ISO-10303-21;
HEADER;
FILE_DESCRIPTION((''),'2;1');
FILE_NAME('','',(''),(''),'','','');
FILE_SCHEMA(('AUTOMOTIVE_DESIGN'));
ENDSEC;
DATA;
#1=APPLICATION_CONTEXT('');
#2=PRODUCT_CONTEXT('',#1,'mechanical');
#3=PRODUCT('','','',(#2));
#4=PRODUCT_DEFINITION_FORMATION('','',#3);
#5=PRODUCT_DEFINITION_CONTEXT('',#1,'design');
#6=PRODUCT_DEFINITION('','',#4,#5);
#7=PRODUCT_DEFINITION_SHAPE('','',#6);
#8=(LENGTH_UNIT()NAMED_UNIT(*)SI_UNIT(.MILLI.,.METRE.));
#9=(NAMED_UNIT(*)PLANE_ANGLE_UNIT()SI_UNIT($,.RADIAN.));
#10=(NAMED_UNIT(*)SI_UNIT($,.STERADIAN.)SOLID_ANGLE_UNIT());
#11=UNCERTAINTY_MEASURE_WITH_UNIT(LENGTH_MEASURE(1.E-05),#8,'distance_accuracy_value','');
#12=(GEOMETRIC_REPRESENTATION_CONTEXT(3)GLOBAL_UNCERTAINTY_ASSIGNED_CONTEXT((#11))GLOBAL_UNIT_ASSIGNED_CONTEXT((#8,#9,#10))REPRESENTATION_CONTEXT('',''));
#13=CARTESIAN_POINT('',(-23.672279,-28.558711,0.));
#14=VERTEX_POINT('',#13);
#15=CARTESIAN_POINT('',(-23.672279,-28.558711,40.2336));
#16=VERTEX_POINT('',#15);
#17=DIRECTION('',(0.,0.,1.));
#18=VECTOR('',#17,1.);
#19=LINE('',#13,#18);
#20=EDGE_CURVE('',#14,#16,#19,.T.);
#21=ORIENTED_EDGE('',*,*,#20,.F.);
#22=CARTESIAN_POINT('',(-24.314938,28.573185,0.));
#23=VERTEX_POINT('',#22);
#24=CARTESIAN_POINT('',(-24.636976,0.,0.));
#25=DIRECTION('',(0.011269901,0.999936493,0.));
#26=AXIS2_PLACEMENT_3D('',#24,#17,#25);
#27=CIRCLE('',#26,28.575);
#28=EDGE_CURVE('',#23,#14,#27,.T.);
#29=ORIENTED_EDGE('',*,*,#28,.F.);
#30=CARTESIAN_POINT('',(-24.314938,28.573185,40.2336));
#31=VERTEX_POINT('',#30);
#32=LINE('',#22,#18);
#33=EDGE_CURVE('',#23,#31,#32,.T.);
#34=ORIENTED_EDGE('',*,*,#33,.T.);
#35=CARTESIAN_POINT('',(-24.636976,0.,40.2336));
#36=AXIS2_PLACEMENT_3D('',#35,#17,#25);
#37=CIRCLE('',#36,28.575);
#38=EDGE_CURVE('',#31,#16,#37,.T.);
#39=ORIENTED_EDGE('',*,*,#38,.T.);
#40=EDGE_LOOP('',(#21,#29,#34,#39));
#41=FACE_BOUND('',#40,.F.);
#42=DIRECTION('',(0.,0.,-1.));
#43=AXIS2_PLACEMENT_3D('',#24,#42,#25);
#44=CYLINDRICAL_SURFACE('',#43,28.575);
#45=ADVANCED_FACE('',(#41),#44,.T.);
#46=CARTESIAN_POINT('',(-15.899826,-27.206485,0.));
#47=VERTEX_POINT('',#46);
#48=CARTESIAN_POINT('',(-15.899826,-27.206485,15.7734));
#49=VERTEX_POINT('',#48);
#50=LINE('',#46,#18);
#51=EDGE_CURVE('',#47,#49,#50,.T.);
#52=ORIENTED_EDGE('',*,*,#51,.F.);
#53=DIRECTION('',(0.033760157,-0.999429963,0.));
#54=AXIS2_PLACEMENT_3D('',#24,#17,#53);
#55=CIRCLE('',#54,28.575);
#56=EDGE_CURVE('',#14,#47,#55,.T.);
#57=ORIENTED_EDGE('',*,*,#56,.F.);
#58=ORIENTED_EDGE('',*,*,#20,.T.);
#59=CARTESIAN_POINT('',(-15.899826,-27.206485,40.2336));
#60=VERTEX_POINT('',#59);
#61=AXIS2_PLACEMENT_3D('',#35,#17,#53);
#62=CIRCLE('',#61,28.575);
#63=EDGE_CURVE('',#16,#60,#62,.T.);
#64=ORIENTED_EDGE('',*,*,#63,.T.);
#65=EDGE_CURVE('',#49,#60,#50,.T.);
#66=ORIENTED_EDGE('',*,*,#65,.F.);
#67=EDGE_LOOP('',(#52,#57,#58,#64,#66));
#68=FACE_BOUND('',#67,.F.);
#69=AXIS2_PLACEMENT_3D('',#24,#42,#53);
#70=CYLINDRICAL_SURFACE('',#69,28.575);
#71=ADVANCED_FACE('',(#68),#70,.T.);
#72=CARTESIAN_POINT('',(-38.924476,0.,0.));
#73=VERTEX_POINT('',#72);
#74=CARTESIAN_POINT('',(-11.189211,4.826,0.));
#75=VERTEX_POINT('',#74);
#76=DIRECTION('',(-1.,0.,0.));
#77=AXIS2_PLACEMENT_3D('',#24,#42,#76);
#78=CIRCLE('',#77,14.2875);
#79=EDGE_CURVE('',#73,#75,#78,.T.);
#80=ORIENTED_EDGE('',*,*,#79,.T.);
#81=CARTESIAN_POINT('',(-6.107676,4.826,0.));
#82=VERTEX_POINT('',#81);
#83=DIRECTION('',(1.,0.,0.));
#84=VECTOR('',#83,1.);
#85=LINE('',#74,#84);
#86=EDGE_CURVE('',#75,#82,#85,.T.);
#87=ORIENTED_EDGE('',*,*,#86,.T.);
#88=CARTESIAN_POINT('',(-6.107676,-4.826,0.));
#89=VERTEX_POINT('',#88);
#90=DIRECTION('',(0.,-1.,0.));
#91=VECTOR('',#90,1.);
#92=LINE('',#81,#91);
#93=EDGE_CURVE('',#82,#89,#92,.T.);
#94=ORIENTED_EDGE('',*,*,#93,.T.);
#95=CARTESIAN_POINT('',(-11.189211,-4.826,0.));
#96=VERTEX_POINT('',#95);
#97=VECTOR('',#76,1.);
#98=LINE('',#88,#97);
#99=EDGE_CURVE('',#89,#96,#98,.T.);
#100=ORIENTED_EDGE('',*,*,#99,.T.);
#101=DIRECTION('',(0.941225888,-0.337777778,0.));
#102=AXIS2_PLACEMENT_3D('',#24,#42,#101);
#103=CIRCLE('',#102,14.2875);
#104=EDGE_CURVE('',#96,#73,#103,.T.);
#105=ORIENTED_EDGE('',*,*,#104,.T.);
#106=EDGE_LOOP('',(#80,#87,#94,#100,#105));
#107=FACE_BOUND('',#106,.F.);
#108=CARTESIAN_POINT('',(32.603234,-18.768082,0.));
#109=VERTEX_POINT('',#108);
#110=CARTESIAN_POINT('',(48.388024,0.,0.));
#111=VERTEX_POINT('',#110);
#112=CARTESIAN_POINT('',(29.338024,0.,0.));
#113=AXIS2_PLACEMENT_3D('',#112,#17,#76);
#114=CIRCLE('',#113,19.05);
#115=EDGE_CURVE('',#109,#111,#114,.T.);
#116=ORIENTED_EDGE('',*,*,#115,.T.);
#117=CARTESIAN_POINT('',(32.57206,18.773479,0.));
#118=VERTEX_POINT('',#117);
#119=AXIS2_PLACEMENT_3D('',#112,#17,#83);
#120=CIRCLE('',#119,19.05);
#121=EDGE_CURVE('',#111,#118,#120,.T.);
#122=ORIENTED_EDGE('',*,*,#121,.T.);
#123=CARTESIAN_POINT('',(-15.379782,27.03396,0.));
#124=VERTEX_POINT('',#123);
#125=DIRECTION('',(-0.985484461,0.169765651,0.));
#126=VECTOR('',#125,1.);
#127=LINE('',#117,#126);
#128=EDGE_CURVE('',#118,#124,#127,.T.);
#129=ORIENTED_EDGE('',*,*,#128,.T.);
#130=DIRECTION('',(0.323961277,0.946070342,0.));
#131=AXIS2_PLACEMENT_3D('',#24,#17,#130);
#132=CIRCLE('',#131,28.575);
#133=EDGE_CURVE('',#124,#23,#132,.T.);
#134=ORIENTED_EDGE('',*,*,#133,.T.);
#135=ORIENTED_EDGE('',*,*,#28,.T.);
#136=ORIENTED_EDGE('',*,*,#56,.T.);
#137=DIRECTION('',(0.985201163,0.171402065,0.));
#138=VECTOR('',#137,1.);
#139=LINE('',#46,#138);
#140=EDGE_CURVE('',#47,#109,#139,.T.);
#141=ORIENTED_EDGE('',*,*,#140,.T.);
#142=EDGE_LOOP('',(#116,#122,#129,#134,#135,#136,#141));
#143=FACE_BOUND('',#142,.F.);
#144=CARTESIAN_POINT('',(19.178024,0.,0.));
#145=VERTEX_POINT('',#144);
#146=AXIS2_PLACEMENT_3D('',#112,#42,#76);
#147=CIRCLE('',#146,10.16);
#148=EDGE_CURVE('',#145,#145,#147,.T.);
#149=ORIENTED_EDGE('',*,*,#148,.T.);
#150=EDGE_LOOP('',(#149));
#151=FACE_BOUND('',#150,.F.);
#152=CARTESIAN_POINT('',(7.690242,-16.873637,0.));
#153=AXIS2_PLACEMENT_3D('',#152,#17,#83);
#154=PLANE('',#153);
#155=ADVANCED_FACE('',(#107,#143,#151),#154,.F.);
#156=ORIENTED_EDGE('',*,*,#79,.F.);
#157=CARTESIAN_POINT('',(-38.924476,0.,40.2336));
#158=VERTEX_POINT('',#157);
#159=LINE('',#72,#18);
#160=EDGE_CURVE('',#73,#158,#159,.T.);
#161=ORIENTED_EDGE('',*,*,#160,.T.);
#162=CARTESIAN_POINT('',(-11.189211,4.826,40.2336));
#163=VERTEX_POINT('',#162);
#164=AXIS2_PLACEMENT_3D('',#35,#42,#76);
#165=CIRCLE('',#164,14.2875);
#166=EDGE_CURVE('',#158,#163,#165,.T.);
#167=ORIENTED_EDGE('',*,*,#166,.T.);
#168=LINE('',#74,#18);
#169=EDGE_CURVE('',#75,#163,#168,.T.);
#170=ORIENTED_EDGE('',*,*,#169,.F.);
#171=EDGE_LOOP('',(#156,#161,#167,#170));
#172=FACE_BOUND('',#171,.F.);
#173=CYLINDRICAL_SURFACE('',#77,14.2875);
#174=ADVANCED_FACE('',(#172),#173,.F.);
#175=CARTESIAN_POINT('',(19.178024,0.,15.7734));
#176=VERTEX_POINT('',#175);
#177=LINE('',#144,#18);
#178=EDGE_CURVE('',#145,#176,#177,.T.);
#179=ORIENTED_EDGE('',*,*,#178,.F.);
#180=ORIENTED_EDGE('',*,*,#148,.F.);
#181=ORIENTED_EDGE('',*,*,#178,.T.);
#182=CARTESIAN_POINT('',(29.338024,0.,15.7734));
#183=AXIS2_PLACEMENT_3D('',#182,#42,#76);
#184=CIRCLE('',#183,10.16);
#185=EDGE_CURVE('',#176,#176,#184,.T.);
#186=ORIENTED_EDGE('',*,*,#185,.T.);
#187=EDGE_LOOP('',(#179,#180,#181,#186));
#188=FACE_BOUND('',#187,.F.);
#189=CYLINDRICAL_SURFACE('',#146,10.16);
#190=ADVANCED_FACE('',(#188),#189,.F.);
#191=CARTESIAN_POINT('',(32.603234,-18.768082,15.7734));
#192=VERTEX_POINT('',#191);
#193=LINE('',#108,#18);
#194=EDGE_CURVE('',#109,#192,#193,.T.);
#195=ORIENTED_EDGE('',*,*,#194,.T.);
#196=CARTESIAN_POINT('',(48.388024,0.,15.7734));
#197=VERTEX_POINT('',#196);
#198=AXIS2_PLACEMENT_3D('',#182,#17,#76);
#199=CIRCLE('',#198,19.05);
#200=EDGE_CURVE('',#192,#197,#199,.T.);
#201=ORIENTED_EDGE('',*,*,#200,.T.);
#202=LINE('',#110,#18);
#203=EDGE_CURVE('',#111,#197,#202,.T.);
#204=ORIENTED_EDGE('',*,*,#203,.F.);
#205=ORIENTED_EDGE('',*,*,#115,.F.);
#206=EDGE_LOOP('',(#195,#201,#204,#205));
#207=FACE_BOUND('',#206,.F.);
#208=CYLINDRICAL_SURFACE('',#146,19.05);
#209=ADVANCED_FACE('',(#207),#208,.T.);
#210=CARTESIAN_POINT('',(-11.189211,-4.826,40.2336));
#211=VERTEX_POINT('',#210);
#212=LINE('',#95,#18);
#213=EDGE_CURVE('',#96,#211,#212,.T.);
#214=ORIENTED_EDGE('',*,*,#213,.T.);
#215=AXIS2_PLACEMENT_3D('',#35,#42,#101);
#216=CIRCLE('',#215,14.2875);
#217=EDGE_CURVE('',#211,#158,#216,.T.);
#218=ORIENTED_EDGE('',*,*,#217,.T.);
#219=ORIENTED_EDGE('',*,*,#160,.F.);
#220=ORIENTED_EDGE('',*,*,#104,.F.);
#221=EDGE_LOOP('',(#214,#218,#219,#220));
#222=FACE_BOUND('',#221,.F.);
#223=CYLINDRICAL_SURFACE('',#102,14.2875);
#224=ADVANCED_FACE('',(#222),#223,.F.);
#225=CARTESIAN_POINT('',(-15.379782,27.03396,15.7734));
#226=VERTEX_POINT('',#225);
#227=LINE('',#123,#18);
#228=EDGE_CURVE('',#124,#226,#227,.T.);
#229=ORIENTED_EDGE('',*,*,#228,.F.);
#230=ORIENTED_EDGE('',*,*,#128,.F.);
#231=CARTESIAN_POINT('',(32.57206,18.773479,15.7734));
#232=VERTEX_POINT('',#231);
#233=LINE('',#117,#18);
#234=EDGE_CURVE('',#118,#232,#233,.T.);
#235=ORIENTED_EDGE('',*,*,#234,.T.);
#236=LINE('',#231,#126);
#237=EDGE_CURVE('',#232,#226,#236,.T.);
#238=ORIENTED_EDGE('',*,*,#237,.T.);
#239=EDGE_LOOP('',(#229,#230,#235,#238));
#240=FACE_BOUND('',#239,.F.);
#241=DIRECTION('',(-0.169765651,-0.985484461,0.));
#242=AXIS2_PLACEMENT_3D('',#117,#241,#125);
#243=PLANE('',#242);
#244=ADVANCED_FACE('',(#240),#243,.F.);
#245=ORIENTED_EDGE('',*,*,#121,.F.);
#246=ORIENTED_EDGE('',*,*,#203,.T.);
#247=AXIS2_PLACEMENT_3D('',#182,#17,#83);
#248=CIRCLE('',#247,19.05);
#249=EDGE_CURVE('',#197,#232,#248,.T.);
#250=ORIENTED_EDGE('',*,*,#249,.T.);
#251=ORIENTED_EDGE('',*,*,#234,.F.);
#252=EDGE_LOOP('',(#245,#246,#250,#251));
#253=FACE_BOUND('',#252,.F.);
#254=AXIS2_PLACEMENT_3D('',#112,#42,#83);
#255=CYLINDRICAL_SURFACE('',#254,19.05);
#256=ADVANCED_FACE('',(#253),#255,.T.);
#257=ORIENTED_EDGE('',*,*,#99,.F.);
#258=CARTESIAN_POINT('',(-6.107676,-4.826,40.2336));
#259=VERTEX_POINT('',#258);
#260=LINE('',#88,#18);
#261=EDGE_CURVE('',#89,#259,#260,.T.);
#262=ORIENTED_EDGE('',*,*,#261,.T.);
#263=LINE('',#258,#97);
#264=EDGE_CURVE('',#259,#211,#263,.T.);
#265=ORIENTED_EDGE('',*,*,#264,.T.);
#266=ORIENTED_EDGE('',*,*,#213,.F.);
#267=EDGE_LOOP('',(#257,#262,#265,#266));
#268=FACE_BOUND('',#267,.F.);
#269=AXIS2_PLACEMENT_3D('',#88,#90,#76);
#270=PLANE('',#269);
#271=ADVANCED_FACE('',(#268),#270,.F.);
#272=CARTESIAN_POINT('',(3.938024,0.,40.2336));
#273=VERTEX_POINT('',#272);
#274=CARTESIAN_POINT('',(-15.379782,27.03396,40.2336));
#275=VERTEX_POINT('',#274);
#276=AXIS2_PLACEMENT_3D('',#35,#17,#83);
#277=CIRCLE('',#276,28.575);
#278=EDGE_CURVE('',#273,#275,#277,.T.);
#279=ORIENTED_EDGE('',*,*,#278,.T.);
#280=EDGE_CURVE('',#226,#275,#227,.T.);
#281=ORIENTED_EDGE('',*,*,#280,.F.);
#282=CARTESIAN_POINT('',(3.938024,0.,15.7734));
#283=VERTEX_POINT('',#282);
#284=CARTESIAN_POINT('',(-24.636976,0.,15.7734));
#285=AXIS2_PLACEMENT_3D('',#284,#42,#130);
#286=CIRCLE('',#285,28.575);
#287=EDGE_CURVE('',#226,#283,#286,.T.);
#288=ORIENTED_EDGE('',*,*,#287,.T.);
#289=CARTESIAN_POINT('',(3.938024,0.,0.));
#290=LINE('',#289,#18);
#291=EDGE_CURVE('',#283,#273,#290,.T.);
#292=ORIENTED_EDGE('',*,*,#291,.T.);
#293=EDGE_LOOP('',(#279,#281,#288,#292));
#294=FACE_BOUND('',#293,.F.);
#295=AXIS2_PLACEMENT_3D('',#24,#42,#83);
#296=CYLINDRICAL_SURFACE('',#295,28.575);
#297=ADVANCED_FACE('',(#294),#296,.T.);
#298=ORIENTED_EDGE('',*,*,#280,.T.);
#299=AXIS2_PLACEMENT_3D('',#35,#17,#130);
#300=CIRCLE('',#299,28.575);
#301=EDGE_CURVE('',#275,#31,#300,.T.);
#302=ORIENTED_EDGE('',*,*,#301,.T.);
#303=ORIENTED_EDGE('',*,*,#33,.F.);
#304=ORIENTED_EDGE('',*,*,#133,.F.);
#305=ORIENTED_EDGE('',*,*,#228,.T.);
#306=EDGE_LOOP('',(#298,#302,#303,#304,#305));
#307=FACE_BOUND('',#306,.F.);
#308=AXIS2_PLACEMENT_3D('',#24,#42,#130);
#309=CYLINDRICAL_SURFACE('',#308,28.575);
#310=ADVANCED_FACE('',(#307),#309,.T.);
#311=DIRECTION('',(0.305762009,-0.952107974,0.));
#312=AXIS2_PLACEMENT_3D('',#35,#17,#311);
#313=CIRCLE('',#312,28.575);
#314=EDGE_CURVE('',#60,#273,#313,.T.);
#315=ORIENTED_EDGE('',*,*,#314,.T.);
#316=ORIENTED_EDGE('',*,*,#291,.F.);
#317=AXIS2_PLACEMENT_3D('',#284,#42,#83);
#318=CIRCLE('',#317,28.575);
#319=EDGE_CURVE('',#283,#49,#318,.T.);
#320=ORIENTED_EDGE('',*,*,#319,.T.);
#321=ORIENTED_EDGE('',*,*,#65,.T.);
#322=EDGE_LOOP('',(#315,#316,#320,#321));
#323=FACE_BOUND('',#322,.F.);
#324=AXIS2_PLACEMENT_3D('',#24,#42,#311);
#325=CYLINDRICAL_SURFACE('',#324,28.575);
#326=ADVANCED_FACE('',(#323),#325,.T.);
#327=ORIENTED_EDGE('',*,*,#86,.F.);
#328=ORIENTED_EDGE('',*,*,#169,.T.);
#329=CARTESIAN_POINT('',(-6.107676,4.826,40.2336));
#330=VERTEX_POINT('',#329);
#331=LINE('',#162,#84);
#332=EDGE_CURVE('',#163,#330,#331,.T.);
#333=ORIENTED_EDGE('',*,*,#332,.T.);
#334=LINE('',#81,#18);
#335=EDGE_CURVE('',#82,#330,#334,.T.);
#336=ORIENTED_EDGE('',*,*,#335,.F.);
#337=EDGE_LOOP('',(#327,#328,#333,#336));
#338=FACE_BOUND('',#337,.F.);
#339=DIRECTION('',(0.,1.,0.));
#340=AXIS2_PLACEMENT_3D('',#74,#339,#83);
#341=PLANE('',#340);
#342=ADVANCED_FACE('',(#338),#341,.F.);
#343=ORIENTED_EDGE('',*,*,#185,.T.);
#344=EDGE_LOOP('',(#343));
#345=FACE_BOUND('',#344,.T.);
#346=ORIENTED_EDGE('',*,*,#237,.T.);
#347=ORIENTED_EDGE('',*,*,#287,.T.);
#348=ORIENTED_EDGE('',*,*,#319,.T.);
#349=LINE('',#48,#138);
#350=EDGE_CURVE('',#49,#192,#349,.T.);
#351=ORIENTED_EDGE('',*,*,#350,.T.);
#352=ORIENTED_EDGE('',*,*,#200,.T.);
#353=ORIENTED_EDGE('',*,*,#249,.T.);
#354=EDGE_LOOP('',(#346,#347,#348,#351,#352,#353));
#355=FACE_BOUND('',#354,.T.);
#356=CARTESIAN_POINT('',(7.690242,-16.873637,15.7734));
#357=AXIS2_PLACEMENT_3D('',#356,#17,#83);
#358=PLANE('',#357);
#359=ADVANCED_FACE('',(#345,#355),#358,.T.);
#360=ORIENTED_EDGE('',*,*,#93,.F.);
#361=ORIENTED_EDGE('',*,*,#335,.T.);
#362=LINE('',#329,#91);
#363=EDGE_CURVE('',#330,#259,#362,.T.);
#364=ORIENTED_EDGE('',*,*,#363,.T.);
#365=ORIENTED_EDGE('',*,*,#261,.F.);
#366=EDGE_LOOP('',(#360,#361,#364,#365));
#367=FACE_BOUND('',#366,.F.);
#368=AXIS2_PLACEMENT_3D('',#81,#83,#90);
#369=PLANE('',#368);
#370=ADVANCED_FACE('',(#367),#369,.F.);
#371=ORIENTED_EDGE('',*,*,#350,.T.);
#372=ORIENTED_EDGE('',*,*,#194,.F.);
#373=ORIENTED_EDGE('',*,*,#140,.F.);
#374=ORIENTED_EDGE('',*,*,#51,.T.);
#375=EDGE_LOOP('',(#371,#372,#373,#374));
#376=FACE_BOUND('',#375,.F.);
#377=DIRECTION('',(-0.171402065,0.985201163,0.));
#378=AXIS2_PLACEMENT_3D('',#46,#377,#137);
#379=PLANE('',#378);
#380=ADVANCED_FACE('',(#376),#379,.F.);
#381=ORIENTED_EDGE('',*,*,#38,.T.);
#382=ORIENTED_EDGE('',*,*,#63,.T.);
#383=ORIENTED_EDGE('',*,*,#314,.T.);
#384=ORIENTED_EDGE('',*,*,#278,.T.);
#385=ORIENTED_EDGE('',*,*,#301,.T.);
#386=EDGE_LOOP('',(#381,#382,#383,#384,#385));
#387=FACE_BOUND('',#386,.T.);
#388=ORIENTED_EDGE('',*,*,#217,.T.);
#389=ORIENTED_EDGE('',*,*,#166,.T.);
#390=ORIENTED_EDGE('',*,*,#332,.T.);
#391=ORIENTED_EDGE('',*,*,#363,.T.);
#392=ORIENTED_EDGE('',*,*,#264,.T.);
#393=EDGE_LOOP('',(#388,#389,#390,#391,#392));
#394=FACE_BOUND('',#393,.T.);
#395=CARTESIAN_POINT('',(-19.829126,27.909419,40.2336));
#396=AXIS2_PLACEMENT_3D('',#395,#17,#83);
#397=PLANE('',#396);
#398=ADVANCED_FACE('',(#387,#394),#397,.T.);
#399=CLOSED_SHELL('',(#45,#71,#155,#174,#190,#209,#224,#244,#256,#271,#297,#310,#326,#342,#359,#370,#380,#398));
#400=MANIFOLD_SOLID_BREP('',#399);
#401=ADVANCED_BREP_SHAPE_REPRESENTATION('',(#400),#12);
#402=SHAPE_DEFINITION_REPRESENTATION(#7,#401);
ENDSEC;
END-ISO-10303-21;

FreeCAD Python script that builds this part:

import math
import FreeCAD as App
import Part
import Sketcher
from FreeCAD import Vector
Q = App.Units.Quantity

doc = App.newDocument("Part")
body = doc.addObject("PartDesign::Body", "Body")

sketch1 = body.newObject("Sketcher::SketchObject", "Sketch")
sketch1.AttachmentSupport = (doc.getObject("XY_Plane"), [""])
sketch1.MapMode = "FlatFace"
sketch1.addGeometry(Part.ArcOfCircle(Part.Circle(Vector(-25, 0, 0), Vector(0, 0, 1), 29), math.radians(71.1), math.radians(89.35)), False)
sketch1.addGeometry(Part.ArcOfCircle(Part.Circle(Vector(-25, 0, 0), Vector(0, 0, 1), 29), math.radians(89), math.radians(272)), False)
sketch1.addGeometry(Part.ArcOfCircle(Part.Circle(Vector(-25, 0, 0), Vector(0, 0, 1), 29), math.radians(-88.07), math.radians(-72.2)), False)
sketch1.addGeometry(Part.ArcOfCircle(Part.Circle(Vector(-25, 0, 0), Vector(0, 0, 1), 29), math.radians(-72), math.radians(0)), False)
sketch1.addGeometry(Part.ArcOfCircle(Part.Circle(Vector(-25, 0, 0), Vector(0, 0, 1), 29), math.radians(0), math.radians(71)), False)
sketch1.addGeometry(Part.LineSegment(Vector(-6, -5, 0), Vector(-11, -5, 0)), False)
sketch1.addGeometry(Part.ArcOfCircle(Part.Circle(Vector(-25, 0, 0), Vector(0, 0, 1), 14), math.radians(180), math.radians(340)), False)
sketch1.addGeometry(Part.ArcOfCircle(Part.Circle(Vector(-25, 0, 0), Vector(0, 0, 1), 14), math.radians(20), math.radians(180)), False)
sketch1.addGeometry(Part.LineSegment(Vector(-11, 5, 0), Vector(-6, 5, 0)), False)
sketch1.addGeometry(Part.LineSegment(Vector(-6, 5, 0), Vector(-6, -5, 0)), False)
sketch1.addConstraint(Sketcher.Constraint("Tangent", 0, 2, 1, 1))
sketch1.addConstraint(Sketcher.Constraint("Tangent", 1, 2, 2, 1))
sketch1.addConstraint(Sketcher.Constraint("Tangent", 2, 2, 3, 1))
sketch1.addConstraint(Sketcher.Constraint("Tangent", 3, 2, 4, 1))
sketch1.addConstraint(Sketcher.Constraint("Tangent", 4, 2, 0, 1))
sketch1.addConstraint(Sketcher.Constraint("Coincident", 5, 2, 6, 2))
sketch1.addConstraint(Sketcher.Constraint("Tangent", 6, 1, 7, 2))
sketch1.addConstraint(Sketcher.Constraint("Coincident", 7, 1, 8, 1))
sketch1.addConstraint(Sketcher.Constraint("Coincident", 8, 2, 9, 1))
sketch1.addConstraint(Sketcher.Constraint("Coincident", 9, 2, 5, 1))
sketch1.addConstraint(Sketcher.Constraint("Horizontal", 5))
sketch1.addConstraint(Sketcher.Constraint("Horizontal", 8))
sketch1.addConstraint(Sketcher.Constraint("Vertical", 9))
sketch1.addConstraint(Sketcher.Constraint("Coincident", 2, 3, 0, 3))
sketch1.addConstraint(Sketcher.Constraint("Coincident", 6, 3, 0, 3))
sketch1.addConstraint(Sketcher.Constraint("Equal", 6, 7))
sketch1.addConstraint(Sketcher.Constraint("Symmetric", 5, 2, 7, 1, -1))
sketch1.addConstraint(Sketcher.Constraint("PointOnObject", 3, 2, -1))
sketch1.addConstraint(Sketcher.Constraint("PointOnObject", 6, 1, -1))
sketch1.addConstraint(Sketcher.Constraint("Radius", 0, Q("1.125 in")))
sketch1.addConstraint(Sketcher.Constraint("Radius", 6, Q("0.5625 in")))
sketch1.addConstraint(Sketcher.Constraint("DistanceY", 9, 2, 9, 1, Q("0.38 in")))
sketch1.addConstraint(Sketcher.Constraint("DistanceX", 8, 2, 3, 2, Q("0.3955 in")))
sketch1.addConstraint(Sketcher.Constraint("DistanceX", 0, 2, -1, 1, 24.314938))
sketch1.addConstraint(Sketcher.Constraint("DistanceX", 1, 2, -1, 1, 23.672279))
sketch1.addConstraint(Sketcher.Constraint("DistanceY", 1, 2, -1, 1, 28.558711))
sketch1.addConstraint(Sketcher.Constraint("DistanceY", -1, 1, 4, 2, 27.03396))
sketch1.addConstraint(Sketcher.Constraint("DistanceX", 2, 3, 2, 2, 8.737149))
pad1 = body.newObject("PartDesign::Pad", "Pad")
pad1.Profile = sketch1
pad1.Length = Q("1.584 in")

sketch2 = body.newObject("Sketcher::SketchObject", "Sketch001")
sketch2.AttachmentSupport = (doc.getObject("XY_Plane"), [""])
sketch2.MapMode = "FlatFace"
sketch2.addGeometry(Part.ArcOfCircle(Part.Circle(Vector(-25, 0, 0), Vector(0, 0, 1), 29), math.radians(-72), math.radians(0)), False)
sketch2.addGeometry(Part.LineSegment(Vector(-16, -27, 0), Vector(33, -19, 0)), False)
sketch2.addGeometry(Part.ArcOfCircle(Part.Circle(Vector(29, 0, 0), Vector(0, 0, 1), 19), math.radians(-80), math.radians(0)), False)
sketch2.addGeometry(Part.ArcOfCircle(Part.Circle(Vector(29, 0, 0), Vector(0, 0, 1), 19), math.radians(0), math.radians(80)), False)
sketch2.addGeometry(Part.LineSegment(Vector(33, 19, 0), Vector(-15, 27, 0)), False)
sketch2.addGeometry(Part.ArcOfCircle(Part.Circle(Vector(-25, 0, 0), Vector(0, 0, 1), 29), math.radians(0), math.radians(71)), False)
sketch2.addGeometry(Part.Circle(Vector(29, 0, 0), Vector(0, 0, 1), 10), False)
sketch2.addConstraint(Sketcher.Constraint("Coincident", 0, 1, 1, 1))
sketch2.addConstraint(Sketcher.Constraint("Tangent", 1, 2, 2, 1))
sketch2.addConstraint(Sketcher.Constraint("Tangent", 2, 2, 3, 1))
sketch2.addConstraint(Sketcher.Constraint("Tangent", 3, 2, 4, 1))
sketch2.addConstraint(Sketcher.Constraint("Coincident", 4, 2, 5, 2))
sketch2.addConstraint(Sketcher.Constraint("Tangent", 5, 1, 0, 2))
sketch2.addConstraint(Sketcher.Constraint("Coincident", 6, 3, 2, 3))
sketch2.addConstraint(Sketcher.Constraint("Equal", 2, 3))
sketch2.addConstraint(Sketcher.Constraint("Equal", 0, 5))
sketch2.addConstraint(Sketcher.Constraint("PointOnObject", 0, 3, -1))
sketch2.addConstraint(Sketcher.Constraint("PointOnObject", 2, 3, -1))
sketch2.addConstraint(Sketcher.Constraint("PointOnObject", 2, 2, -1))
sketch2.addConstraint(Sketcher.Constraint("PointOnObject", 5, 1, -1))
sketch2.addConstraint(Sketcher.Constraint("Diameter", 6, Q("0.8 in")))
sketch2.addConstraint(Sketcher.Constraint("Radius", 2, Q("0.75 in")))
sketch2.addConstraint(Sketcher.Constraint("Radius", 0, Q("1.125 in")))
sketch2.addConstraint(Sketcher.Constraint("DistanceX", 5, 1, 2, 3, Q("1 in")))
sketch2.addConstraint(Sketcher.Constraint("Distance", 1, 49.231631))
sketch2.addConstraint(Sketcher.Constraint("Distance", 4, 48.658141))
sketch2.addConstraint(Sketcher.Constraint("DistanceX", -1, 1, 3, 2, 32.57206))
pad2 = body.newObject("PartDesign::Pad", "Pad001")
pad2.Profile = sketch2
pad2.Length = Q("0.621 in")

doc.recompute()
